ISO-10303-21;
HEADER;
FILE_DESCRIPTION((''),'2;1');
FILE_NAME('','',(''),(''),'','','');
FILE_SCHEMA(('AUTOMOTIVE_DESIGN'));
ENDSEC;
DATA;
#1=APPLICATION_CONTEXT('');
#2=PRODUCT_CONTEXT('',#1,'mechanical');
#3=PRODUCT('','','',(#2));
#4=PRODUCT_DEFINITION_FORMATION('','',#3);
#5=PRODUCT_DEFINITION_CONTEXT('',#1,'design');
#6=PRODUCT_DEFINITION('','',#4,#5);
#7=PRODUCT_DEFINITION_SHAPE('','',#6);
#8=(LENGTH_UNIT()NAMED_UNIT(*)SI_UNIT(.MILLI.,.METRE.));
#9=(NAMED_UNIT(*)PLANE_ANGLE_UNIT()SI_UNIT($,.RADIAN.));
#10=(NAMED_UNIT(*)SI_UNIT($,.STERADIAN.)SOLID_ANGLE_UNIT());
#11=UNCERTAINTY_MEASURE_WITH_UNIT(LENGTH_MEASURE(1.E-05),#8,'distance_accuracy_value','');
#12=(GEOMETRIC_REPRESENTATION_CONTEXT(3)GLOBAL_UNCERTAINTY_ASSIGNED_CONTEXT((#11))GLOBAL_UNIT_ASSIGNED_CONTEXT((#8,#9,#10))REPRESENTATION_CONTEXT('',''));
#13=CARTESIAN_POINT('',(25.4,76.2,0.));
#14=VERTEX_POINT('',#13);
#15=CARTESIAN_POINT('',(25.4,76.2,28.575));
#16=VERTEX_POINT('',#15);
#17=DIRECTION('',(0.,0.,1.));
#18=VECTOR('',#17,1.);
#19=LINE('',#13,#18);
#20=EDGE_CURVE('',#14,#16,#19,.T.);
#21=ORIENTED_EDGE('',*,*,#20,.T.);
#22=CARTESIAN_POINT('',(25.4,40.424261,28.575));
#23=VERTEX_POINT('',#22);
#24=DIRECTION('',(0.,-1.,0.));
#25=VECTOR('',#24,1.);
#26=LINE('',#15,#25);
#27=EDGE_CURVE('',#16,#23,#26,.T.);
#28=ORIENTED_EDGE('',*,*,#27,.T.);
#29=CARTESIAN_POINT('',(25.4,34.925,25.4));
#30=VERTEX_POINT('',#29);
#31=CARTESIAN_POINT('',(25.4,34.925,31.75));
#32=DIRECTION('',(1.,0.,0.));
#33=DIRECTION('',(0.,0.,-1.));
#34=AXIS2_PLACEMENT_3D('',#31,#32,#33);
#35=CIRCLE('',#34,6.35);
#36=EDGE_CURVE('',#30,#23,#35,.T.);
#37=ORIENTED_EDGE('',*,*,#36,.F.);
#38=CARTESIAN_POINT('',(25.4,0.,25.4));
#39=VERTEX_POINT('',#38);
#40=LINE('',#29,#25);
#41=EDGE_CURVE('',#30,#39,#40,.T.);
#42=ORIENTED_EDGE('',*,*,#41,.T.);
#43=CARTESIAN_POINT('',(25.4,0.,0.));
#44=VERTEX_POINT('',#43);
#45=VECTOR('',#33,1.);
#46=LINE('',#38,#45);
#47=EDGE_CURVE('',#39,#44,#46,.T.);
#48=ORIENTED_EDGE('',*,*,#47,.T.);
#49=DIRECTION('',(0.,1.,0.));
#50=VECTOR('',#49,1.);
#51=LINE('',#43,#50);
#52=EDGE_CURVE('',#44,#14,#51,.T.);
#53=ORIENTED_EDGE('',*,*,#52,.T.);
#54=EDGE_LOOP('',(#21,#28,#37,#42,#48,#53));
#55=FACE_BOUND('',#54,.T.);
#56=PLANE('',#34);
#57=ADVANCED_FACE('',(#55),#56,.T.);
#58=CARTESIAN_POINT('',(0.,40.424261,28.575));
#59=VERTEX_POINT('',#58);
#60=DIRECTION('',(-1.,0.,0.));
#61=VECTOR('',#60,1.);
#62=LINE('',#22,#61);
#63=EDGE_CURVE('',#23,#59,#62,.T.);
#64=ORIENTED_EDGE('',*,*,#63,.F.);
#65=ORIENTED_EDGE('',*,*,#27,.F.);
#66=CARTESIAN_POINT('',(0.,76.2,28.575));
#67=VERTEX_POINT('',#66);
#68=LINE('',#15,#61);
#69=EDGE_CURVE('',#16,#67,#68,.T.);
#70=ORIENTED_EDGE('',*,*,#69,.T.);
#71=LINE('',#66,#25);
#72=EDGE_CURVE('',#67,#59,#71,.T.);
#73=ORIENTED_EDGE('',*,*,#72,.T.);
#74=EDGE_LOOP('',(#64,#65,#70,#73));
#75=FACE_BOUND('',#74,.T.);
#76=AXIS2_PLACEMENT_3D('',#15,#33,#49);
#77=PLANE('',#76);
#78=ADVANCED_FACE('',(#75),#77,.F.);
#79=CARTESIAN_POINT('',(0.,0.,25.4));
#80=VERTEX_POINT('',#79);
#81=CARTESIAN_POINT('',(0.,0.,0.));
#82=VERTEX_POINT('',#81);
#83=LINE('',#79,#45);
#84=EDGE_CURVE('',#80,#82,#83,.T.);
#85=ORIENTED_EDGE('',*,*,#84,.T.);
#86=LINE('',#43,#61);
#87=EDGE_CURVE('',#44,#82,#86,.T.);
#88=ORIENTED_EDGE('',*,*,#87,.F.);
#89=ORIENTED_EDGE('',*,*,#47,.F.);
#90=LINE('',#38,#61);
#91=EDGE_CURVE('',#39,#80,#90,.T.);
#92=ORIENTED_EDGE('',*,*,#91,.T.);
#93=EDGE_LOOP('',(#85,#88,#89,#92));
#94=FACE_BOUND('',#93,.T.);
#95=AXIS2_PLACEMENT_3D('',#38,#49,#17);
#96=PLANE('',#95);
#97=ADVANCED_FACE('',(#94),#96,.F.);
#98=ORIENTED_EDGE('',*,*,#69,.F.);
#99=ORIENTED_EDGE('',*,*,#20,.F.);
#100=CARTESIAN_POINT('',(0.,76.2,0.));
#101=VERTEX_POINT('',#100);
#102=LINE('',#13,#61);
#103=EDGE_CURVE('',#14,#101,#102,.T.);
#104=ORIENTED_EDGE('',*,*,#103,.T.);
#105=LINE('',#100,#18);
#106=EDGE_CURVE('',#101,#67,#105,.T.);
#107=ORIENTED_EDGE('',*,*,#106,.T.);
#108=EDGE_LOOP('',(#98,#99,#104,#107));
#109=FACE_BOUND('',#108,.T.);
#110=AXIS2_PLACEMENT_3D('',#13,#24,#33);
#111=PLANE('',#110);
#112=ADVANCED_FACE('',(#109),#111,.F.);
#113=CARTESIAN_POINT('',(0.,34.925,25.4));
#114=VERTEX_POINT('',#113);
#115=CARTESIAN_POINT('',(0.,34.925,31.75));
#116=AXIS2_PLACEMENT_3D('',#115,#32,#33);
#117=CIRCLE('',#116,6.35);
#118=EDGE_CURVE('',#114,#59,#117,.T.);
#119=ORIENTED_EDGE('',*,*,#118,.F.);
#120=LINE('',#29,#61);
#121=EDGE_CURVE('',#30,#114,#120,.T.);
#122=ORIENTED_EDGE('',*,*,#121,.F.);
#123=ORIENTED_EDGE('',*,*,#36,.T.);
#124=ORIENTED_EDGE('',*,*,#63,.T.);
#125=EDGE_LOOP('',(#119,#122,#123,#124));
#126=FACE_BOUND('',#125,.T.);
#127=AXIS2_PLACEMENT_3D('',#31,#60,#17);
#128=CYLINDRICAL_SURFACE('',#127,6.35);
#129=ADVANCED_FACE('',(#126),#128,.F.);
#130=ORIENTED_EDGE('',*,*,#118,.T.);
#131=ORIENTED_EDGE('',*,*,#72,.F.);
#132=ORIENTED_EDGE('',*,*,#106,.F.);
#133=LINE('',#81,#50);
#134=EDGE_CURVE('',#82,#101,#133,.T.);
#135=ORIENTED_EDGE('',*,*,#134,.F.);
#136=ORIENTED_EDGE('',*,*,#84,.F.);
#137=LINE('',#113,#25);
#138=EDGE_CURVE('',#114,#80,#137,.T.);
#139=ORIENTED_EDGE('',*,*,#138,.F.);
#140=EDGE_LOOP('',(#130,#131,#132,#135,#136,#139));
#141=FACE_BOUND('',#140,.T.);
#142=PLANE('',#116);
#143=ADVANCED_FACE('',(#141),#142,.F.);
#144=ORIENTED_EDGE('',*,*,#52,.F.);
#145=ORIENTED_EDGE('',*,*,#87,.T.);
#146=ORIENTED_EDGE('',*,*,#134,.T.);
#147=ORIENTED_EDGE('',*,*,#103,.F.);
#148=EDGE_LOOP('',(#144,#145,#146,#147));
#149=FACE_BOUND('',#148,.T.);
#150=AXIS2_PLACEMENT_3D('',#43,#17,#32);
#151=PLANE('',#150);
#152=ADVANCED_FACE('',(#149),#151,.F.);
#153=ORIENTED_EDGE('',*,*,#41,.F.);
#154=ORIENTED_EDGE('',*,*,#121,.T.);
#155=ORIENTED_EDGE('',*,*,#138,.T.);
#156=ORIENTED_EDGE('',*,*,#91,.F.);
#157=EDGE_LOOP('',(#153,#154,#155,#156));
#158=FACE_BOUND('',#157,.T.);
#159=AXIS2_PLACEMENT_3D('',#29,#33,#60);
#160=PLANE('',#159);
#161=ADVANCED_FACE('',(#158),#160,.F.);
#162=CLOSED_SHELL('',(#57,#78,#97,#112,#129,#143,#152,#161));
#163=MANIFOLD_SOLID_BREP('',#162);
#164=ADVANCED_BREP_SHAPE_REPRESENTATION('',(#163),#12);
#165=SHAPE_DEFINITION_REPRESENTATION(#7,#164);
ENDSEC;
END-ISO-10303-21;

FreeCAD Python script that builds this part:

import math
import FreeCAD as App
import Part
import Sketcher
from FreeCAD import Vector
Q = App.Units.Quantity

doc = App.newDocument("Part")
body = doc.addObject("PartDesign::Body", "Body")

# Sketch on YZ plane
sketch1 = body.newObject("Sketcher::SketchObject", "Sketch")
sketch1.AttachmentSupport = (doc.getObject("YZ_Plane"), [""])
sketch1.MapMode = "FlatFace"
sketch1.addGeometry(Part.LineSegment(Vector(0, 0, 0), Vector(76, 0, 0)), False)
sketch1.addGeometry(Part.LineSegment(Vector(76, 0, 0), Vector(76, 29, 0)), False)
sketch1.addGeometry(Part.LineSegment(Vector(76, 29, 0), Vector(40, 29, 0)), False)
sketch1.addGeometry(Part.ArcOfCircle(Part.Circle(Vector(35, 32, 0), Vector(0, 0, 1), 6), math.radians(-90), math.radians(-30)), False)
sketch1.addGeometry(Part.LineSegment(Vector(35, 25, 0), Vector(0, 25, 0)), False)
sketch1.addGeometry(Part.LineSegment(Vector(0, 25, 0), Vector(0, 0, 0)), False)
sketch1.addConstraint(Sketcher.Constraint("Coincident", 0, 2, 1, 1))
sketch1.addConstraint(Sketcher.Constraint("Coincident", 1, 2, 2, 1))
sketch1.addConstraint(Sketcher.Constraint("Coincident", 2, 2, 3, 2))
sketch1.addConstraint(Sketcher.Constraint("Tangent", 3, 1, 4, 1))
sketch1.addConstraint(Sketcher.Constraint("Coincident", 4, 2, 5, 1))
sketch1.addConstraint(Sketcher.Constraint("Coincident", 5, 2, 0, 1))
sketch1.addConstraint(Sketcher.Constraint("Horizontal", 0))
sketch1.addConstraint(Sketcher.Constraint("Vertical", 1))
sketch1.addConstraint(Sketcher.Constraint("Horizontal", 2))
sketch1.addConstraint(Sketcher.Constraint("Horizontal", 4))
sketch1.addConstraint(Sketcher.Constraint("Vertical", 5))
sketch1.addConstraint(Sketcher.Constraint("Coincident", 5, 2, -1, 1))
sketch1.addConstraint(Sketcher.Constraint("DistanceX", 0, 1, 0, 2, Q("3 in")))
sketch1.addConstraint(Sketcher.Constraint("DistanceY", 5, 2, 5, 1, Q("1 in")))
sketch1.addConstraint(Sketcher.Constraint("Radius", 3, Q("0.25 in")))
sketch1.addConstraint(Sketcher.Constraint("DistanceX", 4, 2, 4, 1, Q("1.375 in")))
sketch1.addConstraint(Sketcher.Constraint("DistanceY", 1, 1, 1, 2, Q("1.125 in")))
pad1 = body.newObject("PartDesign::Pad", "Pad")
pad1.Profile = sketch1
pad1.Length = Q("1 in")

doc.recompute()
